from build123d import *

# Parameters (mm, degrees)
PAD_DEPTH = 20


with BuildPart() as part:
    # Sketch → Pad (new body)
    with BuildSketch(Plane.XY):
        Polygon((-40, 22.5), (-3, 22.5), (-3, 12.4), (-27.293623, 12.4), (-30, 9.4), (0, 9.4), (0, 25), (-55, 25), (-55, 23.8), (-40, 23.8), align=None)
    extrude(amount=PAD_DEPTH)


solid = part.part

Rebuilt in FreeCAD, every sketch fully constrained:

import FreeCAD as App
import Part
import Sketcher
from FreeCAD import Vector
Q = App.Units.Quantity


def add_polygon(sketch, points):
    """Adds a closed chain of lines whose ends are joined by coincident constraints."""
    first, n = sketch.GeometryCount, len(points)
    for a, b in zip(points, points[1:] + points[:1]):
        sketch.addGeometry(Part.LineSegment(App.Vector(*a, 0), App.Vector(*b, 0)), False)
    for i in range(n):
        sketch.addConstraint(Sketcher.Constraint("Coincident", first + i, 2, first + (i + 1) % n, 1))

doc = App.newDocument("Part")
body = doc.addObject("PartDesign::Body", "Body")

# Sketch on XY plane
sketch1 = doc.addObject("Sketcher::SketchObject", "Sketch")
body.addObject(sketch1)
sketch1.AttachmentSupport = (doc.XY_Plane, [""])
sketch1.MapMode = "FlatFace"
add_polygon(sketch1, [(-40, 22.5), (-3, 22.5), (-3, 12.4), (-27.293623, 12.4), (-30, 9.4), (0, 9.4), (0, 25), (-55, 25), (-55, 23.8), (-40, 23.8)])  # lines 0-9
sketch1.addConstraint([
    Sketcher.Constraint("Horizontal", 0),
    Sketcher.Constraint("Vertical", 1),
    Sketcher.Constraint("Horizontal", 2),
    Sketcher.Constraint("Horizontal", 4),
    Sketcher.Constraint("Vertical", 5),
    Sketcher.Constraint("Horizontal", 6),
    Sketcher.Constraint("Vertical", 7),
    Sketcher.Constraint("Horizontal", 8),
    Sketcher.Constraint("Vertical", 9),
    Sketcher.Constraint("PointOnObject", 4, 2, -2),
    Sketcher.Constraint("DistanceX", 0, 1, 0, 2, Q("37 mm")),
    Sketcher.Constraint("DistanceX", 4, 1, 4, 2, Q("30 mm")),
    Sketcher.Constraint("DistanceX", 6, 2, 6, 1, Q("55 mm")),
    Sketcher.Constraint("DistanceX", 8, 1, 8, 2, Q("15 mm")),
    Sketcher.Constraint("DistanceY", 1, 2, 1, 1, Q("10.1 mm")),
    Sketcher.Constraint("DistanceY", 5, 1, 5, 2, Q("15.6 mm")),
    Sketcher.Constraint("DistanceY", 7, 2, 7, 1, Q("1.2 mm")),
    Sketcher.Constraint("DistanceY", 9, 2, 9, 1, Q("1.3 mm")),
    Sketcher.Constraint("DistanceY", -1, 1, 5, 2, Q("25 mm")),
    Sketcher.Constraint("DistanceX", 2, 2, 2, 1, Q("24.293623 mm")),
])
pad1 = doc.addObject("PartDesign::Pad", "Pad")
body.addObject(pad1)
pad1.Profile = sketch1
pad1.Length = 20

doc.recompute()
